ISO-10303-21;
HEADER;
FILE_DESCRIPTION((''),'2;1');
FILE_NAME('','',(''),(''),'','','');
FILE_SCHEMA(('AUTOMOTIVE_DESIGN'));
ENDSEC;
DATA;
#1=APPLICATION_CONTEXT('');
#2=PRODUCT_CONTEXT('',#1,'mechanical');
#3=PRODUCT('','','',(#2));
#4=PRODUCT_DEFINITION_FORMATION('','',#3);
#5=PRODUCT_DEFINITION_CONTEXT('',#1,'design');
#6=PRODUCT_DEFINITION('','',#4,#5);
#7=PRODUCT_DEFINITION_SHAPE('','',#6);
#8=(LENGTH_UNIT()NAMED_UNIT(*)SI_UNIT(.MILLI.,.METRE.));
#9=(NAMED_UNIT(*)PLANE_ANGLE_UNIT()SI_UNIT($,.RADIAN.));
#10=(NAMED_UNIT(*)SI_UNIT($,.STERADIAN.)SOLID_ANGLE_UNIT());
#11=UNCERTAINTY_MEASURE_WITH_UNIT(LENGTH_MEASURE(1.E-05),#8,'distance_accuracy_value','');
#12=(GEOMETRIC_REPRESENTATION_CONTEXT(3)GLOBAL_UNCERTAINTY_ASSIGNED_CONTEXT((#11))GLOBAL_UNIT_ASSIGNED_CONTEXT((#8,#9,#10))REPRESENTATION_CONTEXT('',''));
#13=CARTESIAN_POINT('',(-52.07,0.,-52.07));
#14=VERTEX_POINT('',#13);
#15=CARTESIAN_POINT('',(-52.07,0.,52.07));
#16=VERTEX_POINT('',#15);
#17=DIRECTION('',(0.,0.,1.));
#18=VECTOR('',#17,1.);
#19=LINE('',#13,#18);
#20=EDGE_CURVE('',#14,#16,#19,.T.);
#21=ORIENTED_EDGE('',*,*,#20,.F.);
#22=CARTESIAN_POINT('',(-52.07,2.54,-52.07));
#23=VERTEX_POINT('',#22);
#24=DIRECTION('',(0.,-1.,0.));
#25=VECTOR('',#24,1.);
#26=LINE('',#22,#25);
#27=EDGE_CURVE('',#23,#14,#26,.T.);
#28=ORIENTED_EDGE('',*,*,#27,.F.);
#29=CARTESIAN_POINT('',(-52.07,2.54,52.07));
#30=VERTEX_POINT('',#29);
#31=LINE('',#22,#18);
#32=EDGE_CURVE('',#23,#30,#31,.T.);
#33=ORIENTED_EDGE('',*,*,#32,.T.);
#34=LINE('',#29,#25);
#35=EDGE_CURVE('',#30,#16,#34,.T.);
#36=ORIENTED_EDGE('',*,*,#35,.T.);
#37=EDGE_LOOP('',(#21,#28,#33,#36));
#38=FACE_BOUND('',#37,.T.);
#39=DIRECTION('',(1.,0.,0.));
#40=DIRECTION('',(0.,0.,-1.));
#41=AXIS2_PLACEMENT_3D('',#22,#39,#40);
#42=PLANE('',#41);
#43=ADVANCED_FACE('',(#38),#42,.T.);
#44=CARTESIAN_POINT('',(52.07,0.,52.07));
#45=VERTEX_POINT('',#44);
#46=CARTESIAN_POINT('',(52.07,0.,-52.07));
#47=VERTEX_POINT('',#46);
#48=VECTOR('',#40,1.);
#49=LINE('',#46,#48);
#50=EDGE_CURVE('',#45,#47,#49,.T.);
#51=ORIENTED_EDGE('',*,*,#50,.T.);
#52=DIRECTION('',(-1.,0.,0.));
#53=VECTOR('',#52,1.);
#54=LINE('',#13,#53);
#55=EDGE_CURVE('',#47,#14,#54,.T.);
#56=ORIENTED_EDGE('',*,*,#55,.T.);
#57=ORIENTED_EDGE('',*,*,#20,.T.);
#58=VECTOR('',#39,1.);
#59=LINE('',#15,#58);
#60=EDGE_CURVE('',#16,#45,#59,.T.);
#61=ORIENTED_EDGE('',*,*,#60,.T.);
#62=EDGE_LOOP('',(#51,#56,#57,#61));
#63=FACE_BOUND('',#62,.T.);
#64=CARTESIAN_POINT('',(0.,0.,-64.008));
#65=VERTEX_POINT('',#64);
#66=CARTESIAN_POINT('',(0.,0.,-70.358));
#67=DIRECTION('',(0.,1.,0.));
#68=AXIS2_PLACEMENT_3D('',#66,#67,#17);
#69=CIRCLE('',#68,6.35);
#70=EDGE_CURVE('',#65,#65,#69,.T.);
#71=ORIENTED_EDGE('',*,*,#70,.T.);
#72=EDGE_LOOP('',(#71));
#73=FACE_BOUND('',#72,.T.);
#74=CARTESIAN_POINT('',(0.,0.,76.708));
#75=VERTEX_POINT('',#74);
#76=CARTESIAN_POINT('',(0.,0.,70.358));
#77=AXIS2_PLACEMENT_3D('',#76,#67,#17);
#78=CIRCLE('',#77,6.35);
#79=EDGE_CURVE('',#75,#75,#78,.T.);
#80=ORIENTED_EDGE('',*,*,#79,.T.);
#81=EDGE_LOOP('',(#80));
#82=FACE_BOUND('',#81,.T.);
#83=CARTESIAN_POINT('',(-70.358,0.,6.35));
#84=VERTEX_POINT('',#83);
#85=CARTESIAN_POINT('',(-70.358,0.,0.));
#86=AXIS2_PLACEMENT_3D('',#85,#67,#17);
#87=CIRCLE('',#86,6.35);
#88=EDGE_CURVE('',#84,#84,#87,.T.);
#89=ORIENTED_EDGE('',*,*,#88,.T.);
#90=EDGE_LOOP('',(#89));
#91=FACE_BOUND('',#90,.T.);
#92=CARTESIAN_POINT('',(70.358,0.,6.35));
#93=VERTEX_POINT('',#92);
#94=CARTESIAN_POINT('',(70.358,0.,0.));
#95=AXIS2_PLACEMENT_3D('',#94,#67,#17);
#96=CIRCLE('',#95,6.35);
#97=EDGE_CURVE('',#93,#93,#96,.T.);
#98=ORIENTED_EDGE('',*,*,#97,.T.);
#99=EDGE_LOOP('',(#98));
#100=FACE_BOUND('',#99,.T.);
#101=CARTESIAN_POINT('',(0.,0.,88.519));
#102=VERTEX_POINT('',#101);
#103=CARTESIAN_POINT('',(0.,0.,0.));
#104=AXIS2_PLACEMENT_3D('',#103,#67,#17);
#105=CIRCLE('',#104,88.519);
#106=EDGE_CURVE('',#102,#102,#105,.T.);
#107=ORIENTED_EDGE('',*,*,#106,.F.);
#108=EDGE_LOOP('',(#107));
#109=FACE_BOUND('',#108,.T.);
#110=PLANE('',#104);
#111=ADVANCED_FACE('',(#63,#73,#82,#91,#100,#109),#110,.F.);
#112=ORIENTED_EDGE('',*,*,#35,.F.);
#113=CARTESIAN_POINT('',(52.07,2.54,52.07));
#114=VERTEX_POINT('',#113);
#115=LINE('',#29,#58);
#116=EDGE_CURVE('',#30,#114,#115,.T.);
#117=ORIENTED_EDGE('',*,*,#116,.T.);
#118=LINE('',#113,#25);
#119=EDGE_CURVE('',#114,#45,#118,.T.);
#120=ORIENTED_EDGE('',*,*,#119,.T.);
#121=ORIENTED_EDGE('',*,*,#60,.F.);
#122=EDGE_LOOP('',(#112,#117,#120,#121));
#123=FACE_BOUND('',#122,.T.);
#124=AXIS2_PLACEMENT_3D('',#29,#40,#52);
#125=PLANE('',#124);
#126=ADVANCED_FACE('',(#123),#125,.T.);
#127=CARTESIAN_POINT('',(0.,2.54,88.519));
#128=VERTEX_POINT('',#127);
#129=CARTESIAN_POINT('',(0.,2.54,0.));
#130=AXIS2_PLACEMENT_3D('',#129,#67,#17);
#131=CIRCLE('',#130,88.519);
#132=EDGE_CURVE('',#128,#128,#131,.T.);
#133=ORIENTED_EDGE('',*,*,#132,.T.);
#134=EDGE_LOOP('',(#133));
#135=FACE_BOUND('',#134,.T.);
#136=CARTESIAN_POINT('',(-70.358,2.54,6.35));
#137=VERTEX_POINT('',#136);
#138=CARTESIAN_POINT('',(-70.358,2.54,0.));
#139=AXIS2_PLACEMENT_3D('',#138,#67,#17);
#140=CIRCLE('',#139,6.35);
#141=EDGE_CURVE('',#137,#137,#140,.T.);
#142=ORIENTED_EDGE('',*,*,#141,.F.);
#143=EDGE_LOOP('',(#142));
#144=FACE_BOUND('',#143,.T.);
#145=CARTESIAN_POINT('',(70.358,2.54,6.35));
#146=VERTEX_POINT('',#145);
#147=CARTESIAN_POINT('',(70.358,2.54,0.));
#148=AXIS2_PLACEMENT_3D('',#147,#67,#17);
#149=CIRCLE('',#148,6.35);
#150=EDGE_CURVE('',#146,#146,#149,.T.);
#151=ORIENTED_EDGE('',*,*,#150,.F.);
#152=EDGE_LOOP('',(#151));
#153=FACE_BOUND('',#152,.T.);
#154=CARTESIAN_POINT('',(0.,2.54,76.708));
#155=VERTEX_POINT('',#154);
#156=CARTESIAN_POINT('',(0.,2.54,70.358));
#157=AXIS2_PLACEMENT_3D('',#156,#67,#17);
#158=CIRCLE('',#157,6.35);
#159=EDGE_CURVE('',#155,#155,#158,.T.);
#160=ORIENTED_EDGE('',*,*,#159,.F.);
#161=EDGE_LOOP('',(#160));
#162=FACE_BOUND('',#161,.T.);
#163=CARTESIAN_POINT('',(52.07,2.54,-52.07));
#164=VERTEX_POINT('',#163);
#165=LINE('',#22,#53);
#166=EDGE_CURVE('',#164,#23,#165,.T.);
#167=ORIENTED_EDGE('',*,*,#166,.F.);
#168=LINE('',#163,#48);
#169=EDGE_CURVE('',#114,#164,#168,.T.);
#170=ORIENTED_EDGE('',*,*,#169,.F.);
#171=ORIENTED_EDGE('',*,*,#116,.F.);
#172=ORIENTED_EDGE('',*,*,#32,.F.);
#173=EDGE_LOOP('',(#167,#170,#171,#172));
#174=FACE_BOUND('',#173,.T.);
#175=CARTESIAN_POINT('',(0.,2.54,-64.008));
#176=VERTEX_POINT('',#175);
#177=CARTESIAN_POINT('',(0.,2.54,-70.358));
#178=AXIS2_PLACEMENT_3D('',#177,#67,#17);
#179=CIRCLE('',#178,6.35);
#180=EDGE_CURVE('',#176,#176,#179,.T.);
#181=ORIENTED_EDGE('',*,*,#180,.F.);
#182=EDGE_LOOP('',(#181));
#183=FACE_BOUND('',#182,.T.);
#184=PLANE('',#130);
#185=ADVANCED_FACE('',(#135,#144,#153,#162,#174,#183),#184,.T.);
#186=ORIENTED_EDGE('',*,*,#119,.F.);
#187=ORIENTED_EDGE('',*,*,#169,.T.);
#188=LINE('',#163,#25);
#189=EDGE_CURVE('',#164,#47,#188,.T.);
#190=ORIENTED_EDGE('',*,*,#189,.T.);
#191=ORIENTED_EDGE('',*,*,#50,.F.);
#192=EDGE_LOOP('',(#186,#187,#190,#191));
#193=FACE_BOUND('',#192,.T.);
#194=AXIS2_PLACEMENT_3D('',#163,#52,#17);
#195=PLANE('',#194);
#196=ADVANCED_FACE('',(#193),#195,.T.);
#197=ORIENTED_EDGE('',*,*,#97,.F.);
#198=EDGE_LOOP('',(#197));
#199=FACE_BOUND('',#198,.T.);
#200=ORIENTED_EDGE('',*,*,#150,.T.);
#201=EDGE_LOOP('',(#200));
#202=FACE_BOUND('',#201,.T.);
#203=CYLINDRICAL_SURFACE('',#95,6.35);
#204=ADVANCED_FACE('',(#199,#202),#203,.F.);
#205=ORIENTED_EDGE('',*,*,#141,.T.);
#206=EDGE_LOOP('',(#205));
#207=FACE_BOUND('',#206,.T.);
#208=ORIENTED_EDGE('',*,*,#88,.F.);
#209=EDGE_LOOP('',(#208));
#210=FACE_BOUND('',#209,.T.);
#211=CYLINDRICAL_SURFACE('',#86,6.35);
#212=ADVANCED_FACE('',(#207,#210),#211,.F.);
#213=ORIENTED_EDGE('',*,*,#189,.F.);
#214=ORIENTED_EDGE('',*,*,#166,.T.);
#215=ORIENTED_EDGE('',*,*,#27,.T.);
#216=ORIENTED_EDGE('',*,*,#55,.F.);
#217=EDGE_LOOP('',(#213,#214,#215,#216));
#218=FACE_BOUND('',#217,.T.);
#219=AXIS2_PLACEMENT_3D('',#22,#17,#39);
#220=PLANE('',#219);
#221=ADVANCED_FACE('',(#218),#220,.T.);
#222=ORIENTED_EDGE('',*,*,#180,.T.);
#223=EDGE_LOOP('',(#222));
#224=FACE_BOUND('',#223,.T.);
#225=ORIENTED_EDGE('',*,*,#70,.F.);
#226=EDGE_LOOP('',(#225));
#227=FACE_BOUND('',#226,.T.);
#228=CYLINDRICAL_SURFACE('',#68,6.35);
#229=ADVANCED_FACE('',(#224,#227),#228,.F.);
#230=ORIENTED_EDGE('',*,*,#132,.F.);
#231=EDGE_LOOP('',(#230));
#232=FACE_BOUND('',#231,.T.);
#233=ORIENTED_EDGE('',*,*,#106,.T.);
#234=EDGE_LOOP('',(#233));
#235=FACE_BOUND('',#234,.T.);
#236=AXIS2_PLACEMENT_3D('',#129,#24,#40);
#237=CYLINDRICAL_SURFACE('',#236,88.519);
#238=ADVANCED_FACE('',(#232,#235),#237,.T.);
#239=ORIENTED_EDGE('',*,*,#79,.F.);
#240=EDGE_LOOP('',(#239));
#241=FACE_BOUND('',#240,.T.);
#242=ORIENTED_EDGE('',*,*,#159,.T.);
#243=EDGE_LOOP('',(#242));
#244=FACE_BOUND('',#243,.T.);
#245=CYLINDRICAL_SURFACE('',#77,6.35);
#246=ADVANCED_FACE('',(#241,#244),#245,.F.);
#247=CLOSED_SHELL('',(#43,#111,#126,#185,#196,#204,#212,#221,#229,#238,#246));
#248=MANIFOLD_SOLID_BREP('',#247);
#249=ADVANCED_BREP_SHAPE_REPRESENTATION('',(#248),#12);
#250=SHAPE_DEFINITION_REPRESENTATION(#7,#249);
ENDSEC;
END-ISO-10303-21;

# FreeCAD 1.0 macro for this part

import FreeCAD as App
import Part
import Sketcher
Q = App.Units.Quantity

doc = App.newDocument("Part")
params = doc.addObject("Spreadsheet::Sheet", "Params")
for row, (alias, value) in enumerate([
    ("sketch1_diameter", "6.97 in"),
    ("sketch1_width", "4.1 in"),
    ("pad1_length", "0.1 in"),
    ("sketch2_diameter", "0.5 in"),
], start=1):
    params.set(f"A{row}", alias)
    params.set(f"B{row}", "=" + value)
    params.setAlias(f"B{row}", alias)

body = doc.addObject("PartDesign::Body", "Body")

# Sketch on XZ plane
sketch1 = doc.addObject("Sketcher::SketchObject", "Sketch")
body.addObject(sketch1)
sketch1.AttachmentSupport = (doc.XZ_Plane, [""])
sketch1.MapMode = "FlatFace"
sketch1.addGeometry(Part.Circle(App.Vector(0, 0, 0), App.Vector(0, 0, 1), 88.519), False)
sketch1.addGeometry(Part.LineSegment(App.Vector(52.07, 52.07, 0), App.Vector(-52.07, 52.07, 0)), False)
sketch1.addGeometry(Part.LineSegment(App.Vector(-52.07, 52.07, 0), App.Vector(-52.07, -52.07, 0)), False)
sketch1.addGeometry(Part.LineSegment(App.Vector(-52.07, -52.07, 0), App.Vector(52.07, -52.07, 0)), False)
sketch1.addGeometry(Part.LineSegment(App.Vector(52.07, -52.07, 0), App.Vector(52.07, 52.07, 0)), False)
sketch1.addConstraint(Sketcher.Constraint("Coincident", 1, 2, 2, 1))
sketch1.addConstraint(Sketcher.Constraint("Coincident", 2, 2, 3, 1))
sketch1.addConstraint(Sketcher.Constraint("Coincident", 3, 2, 4, 1))
sketch1.addConstraint(Sketcher.Constraint("Coincident", 4, 2, 1, 1))
sketch1.addConstraint(Sketcher.Constraint("Horizontal", 1))
sketch1.addConstraint(Sketcher.Constraint("Vertical", 2))
sketch1.addConstraint(Sketcher.Constraint("Horizontal", 3))
sketch1.addConstraint(Sketcher.Constraint("Vertical", 4))
sketch1.addConstraint(Sketcher.Constraint("Coincident", 0, 3, -1, 1))
sketch1.addConstraint(Sketcher.Constraint("Symmetric", 1, 2, 3, 2, -1, 1))
sketch1.addConstraint(Sketcher.Constraint("Equal", 3, 2))
sketch1.addConstraint(Sketcher.Constraint("Diameter", 0, Q("6.97 in")))
sketch1.addConstraint(Sketcher.Constraint("DistanceX", 1, 2, 1, 1, Q("4.1 in")))
sketch1.setExpression("Constraints[11]", "Params.sketch1_diameter")
sketch1.setExpression("Constraints[12]", "Params.sketch1_width")
pad1 = doc.addObject("PartDesign::Pad", "Pad")
body.addObject(pad1)
pad1.Profile = sketch1
pad1.setExpression("Length", "Params.pad1_length")
pad1.Reversed = True

# Sketch on XZ plane
sketch2 = doc.addObject("Sketcher::SketchObject", "Sketch001")
body.addObject(sketch2)
sketch2.AttachmentSupport = (doc.XZ_Plane, [""])
sketch2.MapMode = "FlatFace"
sketch2.AttachmentOffset = App.Placement(App.Vector(0, 0, -0.1 * 25.4), App.Rotation())
sketch2.addGeometry(Part.Circle(App.Vector(0, -70.358, 0), App.Vector(0, 0, 1), 6.35), False)
sketch2.addGeometry(Part.Circle(App.Vector(70.358, 0, 0), App.Vector(0, 0, 1), 6.35), False)
sketch2.addGeometry(Part.Circle(App.Vector(0, 70.358, 0), App.Vector(0, 0, 1), 6.35), False)
sketch2.addGeometry(Part.Circle(App.Vector(-70.358, 0, 0), App.Vector(0, 0, 1), 6.35), False)
sketch2.addConstraint(Sketcher.Constraint("Equal", 0, 1))
sketch2.addConstraint(Sketcher.Constraint("Equal", 1, 2))
sketch2.addConstraint(Sketcher.Constraint("Equal", 2, 3))
sketch2.addConstraint(Sketcher.Constraint("Symmetric", 0, 3, 2, 3, -1, 1))
sketch2.addConstraint(Sketcher.Constraint("Symmetric", 1, 3, 3, 3, -1, 1))
sketch2.addConstraint(Sketcher.Constraint("PointOnObject", 0, 3, -2))
sketch2.addConstraint(Sketcher.Constraint("PointOnObject", 1, 3, -1))
sketch2.addConstraint(Sketcher.Constraint("Diameter", 0, Q("0.5 in")))
sketch2.addConstraint(Sketcher.Constraint("DistanceY", 0, 3, -1, 1, Q("2.77 in")))
sketch2.addConstraint(Sketcher.Constraint("DistanceX", -1, 1, 1, 3, Q("2.77 in")))
sketch2.setExpression("Constraints[7]", "Params.sketch2_diameter")
pocket1 = doc.addObject("PartDesign::Pocket", "Pocket")
body.addObject(pocket1)
pocket1.Profile = sketch2
pocket1.Type = "ThroughAll"
pocket1.Reversed = True

doc.recompute()
